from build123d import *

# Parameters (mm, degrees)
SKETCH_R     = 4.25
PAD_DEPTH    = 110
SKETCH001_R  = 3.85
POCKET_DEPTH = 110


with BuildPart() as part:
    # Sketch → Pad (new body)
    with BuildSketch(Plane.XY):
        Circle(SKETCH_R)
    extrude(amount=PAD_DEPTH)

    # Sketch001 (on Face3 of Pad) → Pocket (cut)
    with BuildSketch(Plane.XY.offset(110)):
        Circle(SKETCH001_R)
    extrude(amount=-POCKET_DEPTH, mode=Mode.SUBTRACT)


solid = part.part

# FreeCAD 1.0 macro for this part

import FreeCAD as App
import Part
import Sketcher

doc = App.newDocument("Part")
body = doc.addObject("PartDesign::Body", "Body")

sketch1 = body.newObject("Sketcher::SketchObject", "Sketch")
sketch1.AttachmentSupport = (doc.getObject("XY_Plane"), [""])
sketch1.MapMode = "FlatFace"
sketch1.addGeometry(Part.Circle(App.Vector(0, 0, 0), App.Vector(0, 0, 1), 4.2), False)
sketch1.addConstraint([
    Sketcher.Constraint("Coincident", 0, 3, -1, 1),
    Sketcher.Constraint("Diameter", 0, 8.5),
])
pad1 = body.newObject("PartDesign::Pad", "Pad")
pad1.Profile = sketch1
pad1.Length = 110

sketch2 = body.newObject("Sketcher::SketchObject", "Sketch001")
sketch2.AttachmentSupport = (doc.getObject("XY_Plane"), [""])
sketch2.MapMode = "FlatFace"
sketch2.AttachmentOffset = App.Placement(App.Vector(0, 0, 110), App.Rotation())
sketch2.addGeometry(Part.Circle(App.Vector(0, 0, 0), App.Vector(0, 0, 1), 3.9), False)
sketch2.addConstraint([
    Sketcher.Constraint("Coincident", 0, 3, -1, 1),
    Sketcher.Constraint("Diameter", 0, 7.7),
])
pocket1 = body.newObject("PartDesign::Pocket", "Pocket")
pocket1.Profile = sketch2
pocket1.Length = 110

doc.recompute()
